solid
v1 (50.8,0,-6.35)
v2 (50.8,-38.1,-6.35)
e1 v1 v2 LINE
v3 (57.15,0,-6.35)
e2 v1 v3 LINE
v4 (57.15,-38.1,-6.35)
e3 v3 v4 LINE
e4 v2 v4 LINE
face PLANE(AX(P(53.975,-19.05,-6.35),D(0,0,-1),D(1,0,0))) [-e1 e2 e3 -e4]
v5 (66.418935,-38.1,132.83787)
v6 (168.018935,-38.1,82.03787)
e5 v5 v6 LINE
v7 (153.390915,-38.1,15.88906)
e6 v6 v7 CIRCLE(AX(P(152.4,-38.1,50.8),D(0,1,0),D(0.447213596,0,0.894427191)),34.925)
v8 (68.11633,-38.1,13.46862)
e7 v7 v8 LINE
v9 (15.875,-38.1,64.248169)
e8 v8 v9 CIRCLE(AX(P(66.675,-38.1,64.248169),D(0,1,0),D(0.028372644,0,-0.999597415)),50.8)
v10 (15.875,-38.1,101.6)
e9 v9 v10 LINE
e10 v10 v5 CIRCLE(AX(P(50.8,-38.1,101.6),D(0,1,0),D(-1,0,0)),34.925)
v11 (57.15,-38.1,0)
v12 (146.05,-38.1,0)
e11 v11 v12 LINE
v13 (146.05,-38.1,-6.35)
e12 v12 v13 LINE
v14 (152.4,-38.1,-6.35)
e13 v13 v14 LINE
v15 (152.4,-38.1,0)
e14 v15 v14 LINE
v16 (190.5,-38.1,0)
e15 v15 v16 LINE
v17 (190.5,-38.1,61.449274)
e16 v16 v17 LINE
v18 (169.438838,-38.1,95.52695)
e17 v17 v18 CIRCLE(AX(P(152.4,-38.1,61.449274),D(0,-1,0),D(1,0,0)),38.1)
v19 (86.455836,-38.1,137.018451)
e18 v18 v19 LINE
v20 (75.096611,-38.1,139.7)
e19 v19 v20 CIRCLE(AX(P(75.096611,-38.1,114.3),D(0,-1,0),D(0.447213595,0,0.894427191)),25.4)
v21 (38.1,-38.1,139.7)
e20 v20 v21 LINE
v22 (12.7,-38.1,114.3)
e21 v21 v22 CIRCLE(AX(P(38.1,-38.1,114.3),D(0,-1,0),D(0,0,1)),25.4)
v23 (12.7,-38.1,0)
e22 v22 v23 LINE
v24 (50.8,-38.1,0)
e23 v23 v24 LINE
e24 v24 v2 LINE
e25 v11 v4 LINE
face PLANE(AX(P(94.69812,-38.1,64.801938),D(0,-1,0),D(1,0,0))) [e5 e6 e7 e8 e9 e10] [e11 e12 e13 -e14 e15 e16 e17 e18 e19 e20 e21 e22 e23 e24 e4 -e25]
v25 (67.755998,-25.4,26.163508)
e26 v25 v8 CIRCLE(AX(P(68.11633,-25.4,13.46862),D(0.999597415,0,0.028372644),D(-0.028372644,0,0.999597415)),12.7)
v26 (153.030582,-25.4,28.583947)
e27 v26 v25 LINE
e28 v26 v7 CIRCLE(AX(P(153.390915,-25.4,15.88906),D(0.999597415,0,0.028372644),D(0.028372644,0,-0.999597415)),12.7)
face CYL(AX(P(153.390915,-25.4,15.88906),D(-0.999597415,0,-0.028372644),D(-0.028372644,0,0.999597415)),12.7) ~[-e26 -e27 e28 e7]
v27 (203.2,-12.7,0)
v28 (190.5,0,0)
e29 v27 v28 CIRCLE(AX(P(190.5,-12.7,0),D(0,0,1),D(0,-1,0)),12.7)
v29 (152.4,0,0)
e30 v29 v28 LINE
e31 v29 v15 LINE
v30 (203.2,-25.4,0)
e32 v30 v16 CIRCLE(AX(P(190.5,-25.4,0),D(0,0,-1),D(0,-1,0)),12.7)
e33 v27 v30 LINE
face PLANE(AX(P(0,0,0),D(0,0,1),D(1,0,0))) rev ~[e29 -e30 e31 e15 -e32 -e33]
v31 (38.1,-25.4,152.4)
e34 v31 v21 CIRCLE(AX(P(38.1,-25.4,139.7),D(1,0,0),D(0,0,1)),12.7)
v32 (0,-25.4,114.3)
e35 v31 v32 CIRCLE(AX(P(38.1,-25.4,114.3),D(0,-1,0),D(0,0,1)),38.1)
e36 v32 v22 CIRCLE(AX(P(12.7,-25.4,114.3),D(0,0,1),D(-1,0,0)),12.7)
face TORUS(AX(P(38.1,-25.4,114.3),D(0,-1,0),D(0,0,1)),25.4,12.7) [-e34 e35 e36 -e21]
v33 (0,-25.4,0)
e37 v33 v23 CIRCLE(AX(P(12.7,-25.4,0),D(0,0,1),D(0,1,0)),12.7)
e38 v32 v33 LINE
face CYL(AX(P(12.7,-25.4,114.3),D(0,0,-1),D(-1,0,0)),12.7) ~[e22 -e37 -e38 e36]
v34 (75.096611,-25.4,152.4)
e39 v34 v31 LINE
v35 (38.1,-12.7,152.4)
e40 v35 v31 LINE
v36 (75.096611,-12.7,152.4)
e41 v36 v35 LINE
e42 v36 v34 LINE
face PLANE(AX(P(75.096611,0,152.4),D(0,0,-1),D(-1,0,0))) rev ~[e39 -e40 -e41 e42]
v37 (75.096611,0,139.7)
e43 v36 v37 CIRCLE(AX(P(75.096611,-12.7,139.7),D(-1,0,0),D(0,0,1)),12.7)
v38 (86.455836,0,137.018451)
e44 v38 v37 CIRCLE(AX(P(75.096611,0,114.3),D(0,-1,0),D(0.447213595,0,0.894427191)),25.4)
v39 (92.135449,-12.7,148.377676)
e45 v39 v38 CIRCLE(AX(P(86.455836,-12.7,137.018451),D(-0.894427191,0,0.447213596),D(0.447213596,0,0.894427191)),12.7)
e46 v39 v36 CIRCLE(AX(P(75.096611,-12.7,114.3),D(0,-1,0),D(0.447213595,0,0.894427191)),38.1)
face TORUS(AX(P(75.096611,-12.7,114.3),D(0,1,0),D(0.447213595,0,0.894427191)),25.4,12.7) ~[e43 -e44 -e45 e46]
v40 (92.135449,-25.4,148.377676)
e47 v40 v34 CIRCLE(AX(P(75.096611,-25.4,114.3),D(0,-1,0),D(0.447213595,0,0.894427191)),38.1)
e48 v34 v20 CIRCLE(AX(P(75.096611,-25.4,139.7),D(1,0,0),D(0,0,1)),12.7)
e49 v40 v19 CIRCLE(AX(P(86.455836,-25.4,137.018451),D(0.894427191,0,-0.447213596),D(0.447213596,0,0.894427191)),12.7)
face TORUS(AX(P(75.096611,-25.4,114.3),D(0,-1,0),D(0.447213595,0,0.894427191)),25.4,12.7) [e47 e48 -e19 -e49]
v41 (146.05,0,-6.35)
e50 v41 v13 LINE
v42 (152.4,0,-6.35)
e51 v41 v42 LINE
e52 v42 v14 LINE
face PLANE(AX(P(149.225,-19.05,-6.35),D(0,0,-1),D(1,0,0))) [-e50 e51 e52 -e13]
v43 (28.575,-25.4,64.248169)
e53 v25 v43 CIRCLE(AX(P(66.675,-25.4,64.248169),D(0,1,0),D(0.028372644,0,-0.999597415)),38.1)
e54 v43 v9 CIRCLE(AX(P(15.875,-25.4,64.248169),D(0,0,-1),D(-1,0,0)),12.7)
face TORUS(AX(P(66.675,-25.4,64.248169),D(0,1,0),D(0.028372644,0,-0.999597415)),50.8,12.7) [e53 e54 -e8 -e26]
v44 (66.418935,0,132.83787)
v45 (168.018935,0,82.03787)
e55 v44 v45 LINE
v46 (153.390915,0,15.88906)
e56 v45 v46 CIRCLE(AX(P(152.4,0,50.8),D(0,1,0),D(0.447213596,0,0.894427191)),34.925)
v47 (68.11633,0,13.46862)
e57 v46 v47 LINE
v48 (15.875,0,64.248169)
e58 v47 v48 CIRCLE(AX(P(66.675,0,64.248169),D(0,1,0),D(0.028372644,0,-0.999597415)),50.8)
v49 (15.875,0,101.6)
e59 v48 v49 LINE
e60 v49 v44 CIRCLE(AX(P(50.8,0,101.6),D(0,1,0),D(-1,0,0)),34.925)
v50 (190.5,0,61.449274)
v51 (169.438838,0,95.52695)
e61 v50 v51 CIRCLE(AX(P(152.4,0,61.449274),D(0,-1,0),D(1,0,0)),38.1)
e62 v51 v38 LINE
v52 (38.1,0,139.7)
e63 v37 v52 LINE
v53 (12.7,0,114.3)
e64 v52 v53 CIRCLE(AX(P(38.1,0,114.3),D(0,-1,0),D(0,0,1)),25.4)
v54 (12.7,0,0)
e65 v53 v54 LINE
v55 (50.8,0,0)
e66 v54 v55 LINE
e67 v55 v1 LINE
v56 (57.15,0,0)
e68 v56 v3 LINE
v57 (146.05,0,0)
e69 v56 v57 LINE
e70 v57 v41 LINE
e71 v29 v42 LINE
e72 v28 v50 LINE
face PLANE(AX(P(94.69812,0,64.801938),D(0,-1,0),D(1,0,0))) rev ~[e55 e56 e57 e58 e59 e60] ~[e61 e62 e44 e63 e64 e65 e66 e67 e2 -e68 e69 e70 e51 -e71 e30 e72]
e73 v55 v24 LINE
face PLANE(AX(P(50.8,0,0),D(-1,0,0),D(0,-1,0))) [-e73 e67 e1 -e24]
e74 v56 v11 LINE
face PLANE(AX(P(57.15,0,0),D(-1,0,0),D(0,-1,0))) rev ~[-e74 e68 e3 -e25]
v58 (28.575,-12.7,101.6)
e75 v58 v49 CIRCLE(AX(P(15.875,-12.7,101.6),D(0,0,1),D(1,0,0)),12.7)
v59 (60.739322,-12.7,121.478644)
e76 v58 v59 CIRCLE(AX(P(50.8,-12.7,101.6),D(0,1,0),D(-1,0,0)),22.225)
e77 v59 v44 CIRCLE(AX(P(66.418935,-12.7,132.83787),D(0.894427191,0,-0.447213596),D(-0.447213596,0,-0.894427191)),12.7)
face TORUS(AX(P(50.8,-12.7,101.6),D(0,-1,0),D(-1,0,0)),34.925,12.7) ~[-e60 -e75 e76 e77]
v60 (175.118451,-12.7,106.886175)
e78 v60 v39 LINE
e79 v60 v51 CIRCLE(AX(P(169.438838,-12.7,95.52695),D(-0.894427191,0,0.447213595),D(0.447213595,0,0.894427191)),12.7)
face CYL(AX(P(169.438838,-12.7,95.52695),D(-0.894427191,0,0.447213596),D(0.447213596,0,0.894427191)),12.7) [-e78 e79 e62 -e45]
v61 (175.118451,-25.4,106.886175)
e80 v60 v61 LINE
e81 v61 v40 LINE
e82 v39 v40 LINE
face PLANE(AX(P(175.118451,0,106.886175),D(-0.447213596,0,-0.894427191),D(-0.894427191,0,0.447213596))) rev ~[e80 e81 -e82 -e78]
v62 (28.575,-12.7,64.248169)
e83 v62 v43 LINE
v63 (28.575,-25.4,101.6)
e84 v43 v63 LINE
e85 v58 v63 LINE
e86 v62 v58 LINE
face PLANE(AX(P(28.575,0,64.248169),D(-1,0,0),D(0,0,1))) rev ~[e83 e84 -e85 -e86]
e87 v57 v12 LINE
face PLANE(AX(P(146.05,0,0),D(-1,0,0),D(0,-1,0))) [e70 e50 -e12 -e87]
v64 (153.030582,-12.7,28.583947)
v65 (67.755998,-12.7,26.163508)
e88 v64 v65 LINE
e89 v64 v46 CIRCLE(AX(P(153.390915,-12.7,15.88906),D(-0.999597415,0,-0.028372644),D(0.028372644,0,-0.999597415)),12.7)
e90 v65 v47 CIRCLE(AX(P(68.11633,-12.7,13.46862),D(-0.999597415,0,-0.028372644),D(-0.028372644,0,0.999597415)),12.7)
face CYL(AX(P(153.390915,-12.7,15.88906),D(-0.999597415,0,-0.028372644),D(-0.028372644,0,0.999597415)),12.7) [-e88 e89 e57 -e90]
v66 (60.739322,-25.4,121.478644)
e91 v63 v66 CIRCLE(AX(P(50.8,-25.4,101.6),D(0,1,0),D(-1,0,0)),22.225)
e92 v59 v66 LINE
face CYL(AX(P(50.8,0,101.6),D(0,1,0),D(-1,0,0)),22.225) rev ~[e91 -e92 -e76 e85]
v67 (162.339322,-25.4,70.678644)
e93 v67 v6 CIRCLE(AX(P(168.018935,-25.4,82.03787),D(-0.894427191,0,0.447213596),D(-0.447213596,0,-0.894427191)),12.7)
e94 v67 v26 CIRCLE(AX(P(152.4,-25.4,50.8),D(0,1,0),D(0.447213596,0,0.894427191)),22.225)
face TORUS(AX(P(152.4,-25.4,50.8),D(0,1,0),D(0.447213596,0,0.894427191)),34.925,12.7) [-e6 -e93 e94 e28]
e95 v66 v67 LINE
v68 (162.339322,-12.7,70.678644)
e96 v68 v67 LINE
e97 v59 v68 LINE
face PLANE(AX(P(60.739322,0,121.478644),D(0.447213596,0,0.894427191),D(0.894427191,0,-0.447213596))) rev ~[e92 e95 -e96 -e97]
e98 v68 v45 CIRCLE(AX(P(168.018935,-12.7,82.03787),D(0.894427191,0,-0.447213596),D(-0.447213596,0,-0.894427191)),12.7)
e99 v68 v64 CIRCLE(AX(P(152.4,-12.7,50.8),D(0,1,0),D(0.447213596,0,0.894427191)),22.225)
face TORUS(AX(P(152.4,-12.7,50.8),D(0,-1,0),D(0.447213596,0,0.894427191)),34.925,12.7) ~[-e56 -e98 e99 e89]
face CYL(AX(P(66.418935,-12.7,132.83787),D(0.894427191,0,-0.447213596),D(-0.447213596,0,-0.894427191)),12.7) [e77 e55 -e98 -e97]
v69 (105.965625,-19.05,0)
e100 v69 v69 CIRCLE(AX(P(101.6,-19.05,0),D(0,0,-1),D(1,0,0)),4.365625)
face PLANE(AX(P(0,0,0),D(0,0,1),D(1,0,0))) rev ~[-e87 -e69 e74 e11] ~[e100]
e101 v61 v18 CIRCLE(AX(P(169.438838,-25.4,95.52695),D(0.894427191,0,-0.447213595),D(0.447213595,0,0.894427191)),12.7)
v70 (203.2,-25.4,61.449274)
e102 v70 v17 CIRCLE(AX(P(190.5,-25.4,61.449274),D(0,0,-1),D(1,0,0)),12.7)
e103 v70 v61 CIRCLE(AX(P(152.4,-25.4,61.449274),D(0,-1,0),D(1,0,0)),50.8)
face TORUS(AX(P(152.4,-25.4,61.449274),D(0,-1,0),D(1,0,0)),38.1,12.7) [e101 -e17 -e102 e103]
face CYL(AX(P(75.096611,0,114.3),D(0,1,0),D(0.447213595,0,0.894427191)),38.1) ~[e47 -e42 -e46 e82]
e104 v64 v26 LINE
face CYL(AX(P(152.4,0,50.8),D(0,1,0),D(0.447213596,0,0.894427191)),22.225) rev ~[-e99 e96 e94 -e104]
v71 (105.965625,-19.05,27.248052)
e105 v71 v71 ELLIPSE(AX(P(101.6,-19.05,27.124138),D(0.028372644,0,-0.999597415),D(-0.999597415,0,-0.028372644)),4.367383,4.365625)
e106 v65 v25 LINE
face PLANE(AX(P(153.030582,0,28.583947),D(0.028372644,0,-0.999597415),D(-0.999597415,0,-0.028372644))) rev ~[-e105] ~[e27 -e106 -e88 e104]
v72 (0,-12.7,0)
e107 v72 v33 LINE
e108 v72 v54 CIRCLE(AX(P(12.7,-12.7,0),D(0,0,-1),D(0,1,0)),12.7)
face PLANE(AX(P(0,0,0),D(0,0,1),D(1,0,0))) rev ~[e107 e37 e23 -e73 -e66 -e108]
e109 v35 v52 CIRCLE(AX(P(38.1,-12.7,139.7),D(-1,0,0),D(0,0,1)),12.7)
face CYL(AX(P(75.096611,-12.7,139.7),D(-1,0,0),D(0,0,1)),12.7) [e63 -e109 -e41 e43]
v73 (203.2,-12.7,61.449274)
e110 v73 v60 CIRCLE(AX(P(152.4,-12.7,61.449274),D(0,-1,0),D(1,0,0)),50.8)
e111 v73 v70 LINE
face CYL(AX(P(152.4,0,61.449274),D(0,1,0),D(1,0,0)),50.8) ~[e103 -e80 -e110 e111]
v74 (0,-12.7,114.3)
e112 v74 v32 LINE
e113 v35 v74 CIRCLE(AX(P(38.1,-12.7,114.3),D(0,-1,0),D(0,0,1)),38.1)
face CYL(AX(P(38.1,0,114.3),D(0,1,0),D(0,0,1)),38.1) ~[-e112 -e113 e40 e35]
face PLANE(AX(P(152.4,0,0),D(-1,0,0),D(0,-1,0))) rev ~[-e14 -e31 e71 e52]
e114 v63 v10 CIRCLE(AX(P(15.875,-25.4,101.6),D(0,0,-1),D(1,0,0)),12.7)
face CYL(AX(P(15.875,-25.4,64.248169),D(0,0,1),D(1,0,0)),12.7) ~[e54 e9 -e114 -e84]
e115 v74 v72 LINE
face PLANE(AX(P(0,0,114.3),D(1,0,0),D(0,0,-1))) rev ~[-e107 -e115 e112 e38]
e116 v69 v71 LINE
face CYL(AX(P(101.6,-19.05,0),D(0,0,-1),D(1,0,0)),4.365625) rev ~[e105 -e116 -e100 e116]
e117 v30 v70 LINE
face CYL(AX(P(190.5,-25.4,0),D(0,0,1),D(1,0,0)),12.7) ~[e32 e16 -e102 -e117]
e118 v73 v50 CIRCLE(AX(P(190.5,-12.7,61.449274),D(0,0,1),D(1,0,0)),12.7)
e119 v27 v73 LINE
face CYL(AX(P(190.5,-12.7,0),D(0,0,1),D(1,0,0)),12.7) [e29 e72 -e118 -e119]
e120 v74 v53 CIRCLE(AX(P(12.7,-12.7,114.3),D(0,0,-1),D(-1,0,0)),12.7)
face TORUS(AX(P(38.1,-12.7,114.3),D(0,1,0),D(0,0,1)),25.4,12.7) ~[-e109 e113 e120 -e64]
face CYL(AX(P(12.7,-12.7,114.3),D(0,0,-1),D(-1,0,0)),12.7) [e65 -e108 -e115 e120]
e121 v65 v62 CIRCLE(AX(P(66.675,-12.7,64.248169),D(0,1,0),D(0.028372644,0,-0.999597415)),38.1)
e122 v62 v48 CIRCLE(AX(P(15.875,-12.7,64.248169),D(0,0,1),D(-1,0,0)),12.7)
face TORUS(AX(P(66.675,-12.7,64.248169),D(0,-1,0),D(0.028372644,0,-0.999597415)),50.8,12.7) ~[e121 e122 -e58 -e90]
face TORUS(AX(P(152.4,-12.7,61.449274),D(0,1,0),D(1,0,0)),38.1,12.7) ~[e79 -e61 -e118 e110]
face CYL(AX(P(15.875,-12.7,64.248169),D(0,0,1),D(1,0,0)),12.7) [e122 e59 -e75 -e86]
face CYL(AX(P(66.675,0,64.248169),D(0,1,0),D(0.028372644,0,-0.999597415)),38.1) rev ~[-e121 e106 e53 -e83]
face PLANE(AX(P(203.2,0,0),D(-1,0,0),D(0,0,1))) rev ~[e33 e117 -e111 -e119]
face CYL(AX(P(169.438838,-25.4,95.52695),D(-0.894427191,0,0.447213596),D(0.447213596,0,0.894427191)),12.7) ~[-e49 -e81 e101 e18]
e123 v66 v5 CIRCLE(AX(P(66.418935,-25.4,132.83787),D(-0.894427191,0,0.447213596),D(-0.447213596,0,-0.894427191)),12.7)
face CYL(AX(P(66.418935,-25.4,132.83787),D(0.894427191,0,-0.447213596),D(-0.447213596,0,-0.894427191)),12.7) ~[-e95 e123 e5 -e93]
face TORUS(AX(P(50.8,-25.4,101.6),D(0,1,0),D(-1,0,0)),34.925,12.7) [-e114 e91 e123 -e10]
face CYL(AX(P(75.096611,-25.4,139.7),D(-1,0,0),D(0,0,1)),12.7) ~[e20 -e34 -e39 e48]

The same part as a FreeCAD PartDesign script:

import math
import FreeCAD as App
import Part
import Sketcher
from FreeCAD import Vector
Q = App.Units.Quantity


def edges_at(feature, points):
    """Names of the edges that pass closest to the given points."""
    edges = feature.Shape.Edges
    near = lambda p: min(range(len(edges)), key=lambda i: edges[i].distToShape(Part.Vertex(*p))[0])
    return sorted({f"Edge{near(p) + 1}" for p in points})


def add_polygon(sketch, points):
    """Adds a closed chain of lines whose ends are joined by coincident constraints."""
    first, n = sketch.GeometryCount, len(points)
    for a, b in zip(points, points[1:] + points[:1]):
        sketch.addGeometry(Part.LineSegment(App.Vector(*a, 0), App.Vector(*b, 0)), False)
    for i in range(n):
        sketch.addConstraint(Sketcher.Constraint("Coincident", first + i, 2, first + (i + 1) % n, 1))

doc = App.newDocument("Part")
params = doc.addObject("Spreadsheet::Sheet", "Params")
for row, (alias, value) in enumerate([
    ("sketch1_radius", "2 in"),
    ("sketch1_radius2", "1.5 in"),
    ("sketch1_width", "8 in"),
    ("sketch1_height", "4.5 in"),
    ("sketch1_radius3", "0.875 in"),
    ("pad1_length", "1.5 in"),
    ("fillet_radius", "0.5 in"),
    ("sketch2_diameter", "0.34375 in"),
    ("pocket1_length", "27.249052 mm"),
    ("sketch3_height", "1.5 in"),
    ("sketch3_width", "0.25 in"),
    ("pad2_length", "0.25 in"),
], start=1):
    params.set(f"A{row}", alias)
    params.set(f"B{row}", "=" + value)
    params.setAlias(f"B{row}", alias)

body = doc.addObject("PartDesign::Body", "Body")

# Sketch on XZ plane
sketch1 = body.newObject("Sketcher::SketchObject", "Sketch")
sketch1.AttachmentSupport = (doc.getObject("XZ_Plane"), [""])
sketch1.MapMode = "FlatFace"
sketch1.addGeometry(Part.LineSegment(Vector(0, 114.3, 0), Vector(0, 0, 0)), False)
sketch1.addGeometry(Part.LineSegment(Vector(0, 0, 0), Vector(203.2, 0, 0)), False)
sketch1.addGeometry(Part.LineSegment(Vector(203.2, 0, 0), Vector(203.2, 61.449274, 0)), False)
sketch1.addGeometry(Part.ArcOfCircle(Part.Circle(Vector(152.4, 61.449274, 0), Vector(0, 0, 1), 50.8), math.radians(0), math.radians(63.434949)), False)
sketch1.addGeometry(Part.LineSegment(Vector(175.118451, 106.886175, 0), Vector(92.135449, 148.377676, 0)), False)
sketch1.addGeometry(Part.ArcOfCircle(Part.Circle(Vector(75.096611, 114.3, 0), Vector(0, 0, 1), 38.1), math.radians(63.434949), math.radians(90)), False)
sketch1.addGeometry(Part.LineSegment(Vector(75.096611, 152.4, 0), Vector(38.1, 152.4, 0)), False)
sketch1.addGeometry(Part.ArcOfCircle(Part.Circle(Vector(38.1, 114.3, 0), Vector(0, 0, 1), 38.1), math.radians(90), math.radians(180)), False)
sketch1.addGeometry(Part.LineSegment(Vector(28.575, 64.248169, 0), Vector(28.575, 101.6, 0)), False)
sketch1.addGeometry(Part.ArcOfCircle(Part.Circle(Vector(50.8, 101.6, 0), Vector(0, 0, 1), 22.225), math.radians(63.434949), math.radians(180)), False)
sketch1.addGeometry(Part.LineSegment(Vector(60.739322, 121.478644, 0), Vector(162.339322, 70.678644, 0)), False)
sketch1.addGeometry(Part.ArcOfCircle(Part.Circle(Vector(152.4, 50.8, 0), Vector(0, 0, 1), 22.225), math.radians(-88.374149), math.radians(63.434949)), False)
sketch1.addGeometry(Part.LineSegment(Vector(153.030582, 28.583947, 0), Vector(67.755998, 26.163508, 0)), False)
sketch1.addGeometry(Part.ArcOfCircle(Part.Circle(Vector(66.675, 64.248169, 0), Vector(0, 0, 1), 38.1), math.radians(180), math.radians(271.625851)), False)
sketch1.addConstraint(Sketcher.Constraint("Coincident", 0, 2, 1, 1))
sketch1.addConstraint(Sketcher.Constraint("Coincident", 1, 2, 2, 1))
sketch1.addConstraint(Sketcher.Constraint("Tangent", 2, 2, 3, 1))
sketch1.addConstraint(Sketcher.Constraint("Tangent", 3, 2, 4, 1))
sketch1.addConstraint(Sketcher.Constraint("Tangent", 4, 2, 5, 1))
sketch1.addConstraint(Sketcher.Constraint("Tangent", 5, 2, 6, 1))
sketch1.addConstraint(Sketcher.Constraint("Tangent", 6, 2, 7, 1))
sketch1.addConstraint(Sketcher.Constraint("Tangent", 7, 2, 0, 1))
sketch1.addConstraint(Sketcher.Constraint("Tangent", 8, 2, 9, 2))
sketch1.addConstraint(Sketcher.Constraint("Tangent", 9, 1, 10, 1))
sketch1.addConstraint(Sketcher.Constraint("Tangent", 10, 2, 11, 2))
sketch1.addConstraint(Sketcher.Constraint("Tangent", 11, 1, 12, 1))
sketch1.addConstraint(Sketcher.Constraint("Tangent", 12, 2, 13, 2))
sketch1.addConstraint(Sketcher.Constraint("Tangent", 13, 1, 8, 1))
sketch1.addConstraint(Sketcher.Constraint("Vertical", 0))
sketch1.addConstraint(Sketcher.Constraint("Horizontal", 1))
sketch1.addConstraint(Sketcher.Constraint("Vertical", 2))
sketch1.addConstraint(Sketcher.Constraint("Horizontal", 6))
sketch1.addConstraint(Sketcher.Constraint("Vertical", 8))
sketch1.addConstraint(Sketcher.Constraint("Coincident", 0, 2, -1, 1))
sketch1.addConstraint(Sketcher.Constraint("Equal", 5, 7))
sketch1.addConstraint(Sketcher.Constraint("Equal", 9, 11))
sketch1.addConstraint(Sketcher.Constraint("Equal", 7, 13))
sketch1.addConstraint(Sketcher.Constraint("Parallel", 4, 10))
sketch1.addConstraint(Sketcher.Constraint("Vertical", 3, 3, 11, 3))
sketch1.addConstraint(Sketcher.Constraint("Radius", 3, Q("2 in")))
sketch1.addConstraint(Sketcher.Constraint("Radius", 5, Q("1.5 in")))
sketch1.addConstraint(Sketcher.Constraint("DistanceX", 1, 1, 1, 2, Q("8 in")))
sketch1.addConstraint(Sketcher.Constraint("DistanceY", 0, 2, 0, 1, Q("4.5 in")))
sketch1.addConstraint(Sketcher.Constraint("DistanceX", -1, 1, 9, 3, Q("2 in")))
sketch1.addConstraint(Sketcher.Constraint("DistanceY", -1, 1, 9, 3, Q("4 in")))
sketch1.addConstraint(Sketcher.Constraint("DistanceY", -1, 1, 11, 3, Q("2 in")))
sketch1.addConstraint(Sketcher.Constraint("Radius", 9, Q("0.875 in")))
sketch1.addConstraint(Sketcher.Constraint("DistanceX", 6, 2, 6, 1, 36.996611))
sketch1.addConstraint(Sketcher.Constraint("DistanceY", 8, 1, 8, 2, 37.351831))
sketch1.setExpression("Constraints[25]", "Params.sketch1_radius")
sketch1.setExpression("Constraints[26]", "Params.sketch1_radius2")
sketch1.setExpression("Constraints[27]", "Params.sketch1_width")
sketch1.setExpression("Constraints[28]", "Params.sketch1_height")
sketch1.setExpression("Constraints[32]", "Params.sketch1_radius3")
pad1 = body.newObject("PartDesign::Pad", "Pad")
pad1.Profile = sketch1
pad1.setExpression("Length", "Params.pad1_length")
doc.recompute()

fillet = body.newObject("PartDesign::Fillet", "Fillet")
fillet.Base = (pad1, edges_at(pad1, [
    (56.598, -38.1, 152.4),
    (111.539, -38.1, 96.079),
    (111.539, 0, 96.079),
    (133.627, 0, 127.632),
]))
fillet.setExpression("Radius", "Params.fillet_radius")

# Sketch on XY plane
sketch2 = body.newObject("Sketcher::SketchObject", "Sketch001")
sketch2.AttachmentSupport = (doc.getObject("XY_Plane"), [""])
sketch2.MapMode = "FlatFace"
sketch2.addGeometry(Part.Circle(Vector(101.6, -19.05, 0), Vector(0, 0, 1), 4.365625), False)
sketch2.addConstraint(Sketcher.Constraint("Diameter", 0, Q("0.34375 in")))
sketch2.addConstraint(Sketcher.Constraint("DistanceX", -1, 1, 0, 3, Q("4 in")))
sketch2.addConstraint(Sketcher.Constraint("DistanceY", 0, 3, -1, 1, Q("0.75 in")))
sketch2.setExpression("Constraints[0]", "Params.sketch2_diameter")
pocket1 = body.newObject("PartDesign::Pocket", "Pocket")
pocket1.Profile = sketch2
pocket1.setExpression("Length", "Params.pocket1_length")
pocket1.Reversed = True

# Sketch on XY plane
sketch3 = body.newObject("Sketcher::SketchObject", "Sketch002")
sketch3.AttachmentSupport = (doc.getObject("XY_Plane"), [""])
sketch3.MapMode = "FlatFace"
add_polygon(sketch3, [(50.8, -38.1), (50.8, 0), (57.15, 0), (57.15, -38.1)])  # lines 0-3
add_polygon(sketch3, [(146.05, -38.1), (146.05, 0), (152.4, 0), (152.4, -38.1)])  # lines 4-7
sketch3.addConstraint(Sketcher.Constraint("Vertical", 0))
sketch3.addConstraint(Sketcher.Constraint("Horizontal", 1))
sketch3.addConstraint(Sketcher.Constraint("Vertical", 2))
sketch3.addConstraint(Sketcher.Constraint("Horizontal", 3))
sketch3.addConstraint(Sketcher.Constraint("Vertical", 4))
sketch3.addConstraint(Sketcher.Constraint("Horizontal", 5))
sketch3.addConstraint(Sketcher.Constraint("Vertical", 6))
sketch3.addConstraint(Sketcher.Constraint("Horizontal", 7))
sketch3.addConstraint(Sketcher.Constraint("PointOnObject", 0, 2, -1))
sketch3.addConstraint(Sketcher.Constraint("PointOnObject", 4, 2, -1))
sketch3.addConstraint(Sketcher.Constraint("Horizontal", 3, 2, 6, 2))
sketch3.addConstraint(Sketcher.Constraint("Equal", 3, 5))
sketch3.addConstraint(Sketcher.Constraint("DistanceY", 0, 1, 0, 2, Q("1.5 in")))
sketch3.addConstraint(Sketcher.Constraint("DistanceX", -1, 1, 0, 2, Q("2 in")))
sketch3.addConstraint(Sketcher.Constraint("DistanceX", -1, 1, 5, 2, Q("6 in")))
sketch3.addConstraint(Sketcher.Constraint("DistanceX", 1, 1, 1, 2, Q("0.25 in")))
sketch3.setExpression("Constraints[20]", "Params.sketch3_height")
sketch3.setExpression("Constraints[23]", "Params.sketch3_width")
pad2 = body.newObject("PartDesign::Pad", "Pad001")
pad2.Profile = sketch3
pad2.setExpression("Length", "Params.pad2_length")
pad2.Reversed = True

doc.recompute()
